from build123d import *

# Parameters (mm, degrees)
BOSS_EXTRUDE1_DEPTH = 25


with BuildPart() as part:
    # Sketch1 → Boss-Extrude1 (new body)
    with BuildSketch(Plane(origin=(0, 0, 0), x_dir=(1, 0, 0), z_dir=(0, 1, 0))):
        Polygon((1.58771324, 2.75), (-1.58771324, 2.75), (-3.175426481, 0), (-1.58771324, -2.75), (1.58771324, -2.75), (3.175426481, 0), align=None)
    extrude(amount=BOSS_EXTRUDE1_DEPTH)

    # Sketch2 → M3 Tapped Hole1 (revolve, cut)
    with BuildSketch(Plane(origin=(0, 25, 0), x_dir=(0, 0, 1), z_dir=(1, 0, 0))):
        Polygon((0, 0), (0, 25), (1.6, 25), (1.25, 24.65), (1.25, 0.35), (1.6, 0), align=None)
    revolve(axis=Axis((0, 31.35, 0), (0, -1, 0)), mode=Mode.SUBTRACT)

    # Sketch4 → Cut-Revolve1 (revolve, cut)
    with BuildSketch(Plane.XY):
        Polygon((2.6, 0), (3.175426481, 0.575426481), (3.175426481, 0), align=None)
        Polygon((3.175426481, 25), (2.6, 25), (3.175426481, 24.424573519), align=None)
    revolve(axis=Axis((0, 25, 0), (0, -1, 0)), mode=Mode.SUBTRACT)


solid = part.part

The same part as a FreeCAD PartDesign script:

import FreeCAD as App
import Part
import Sketcher
Q = App.Units.Quantity


def add_polygon(sketch, points):
    """Adds a closed chain of lines whose ends are joined by coincident constraints."""
    first, n = sketch.GeometryCount, len(points)
    for a, b in zip(points, points[1:] + points[:1]):
        sketch.addGeometry(Part.LineSegment(App.Vector(*a, 0), App.Vector(*b, 0)), False)
    for i in range(n):
        sketch.addConstraint(Sketcher.Constraint("Coincident", first + i, 2, first + (i + 1) % n, 1))

doc = App.newDocument("Part")
params = doc.addObject("Spreadsheet::Sheet", "Params")
for row, (alias, value) in enumerate([
    ("pad1_length", "25 mm"),
    ("sketch2_width", "25 mm"),
    ("sketch2_width2", "24.3 mm"),
    ("sketch2_height", "1.6 mm"),
    ("groove_angle", "360 deg"),
    ("groove2_angle", "360 deg"),
], start=1):
    params.set(f"A{row}", alias)
    params.set(f"B{row}", "=" + value)
    params.setAlias(f"B{row}", alias)

body = doc.addObject("PartDesign::Body", "Body")

sketch1 = body.newObject("Sketcher::SketchObject", "Sketch")
sketch1.AttachmentSupport = (doc.getObject("XZ_Plane"), [""])
sketch1.MapMode = "FlatFace"
add_polygon(sketch1, [(1.6, -2.8), (-1.6, -2.8), (-3.2, 0), (-1.6, 2.8), (1.6, 2.8), (3.2, 0)])
sketch1.addConstraint(Sketcher.Constraint("Horizontal", 0))
sketch1.addConstraint(Sketcher.Constraint("Horizontal", 3))
sketch1.addConstraint(Sketcher.Constraint("Symmetric", 0, 2, 3, 2, -1, 1))
sketch1.addConstraint(Sketcher.Constraint("Symmetric", 1, 2, 4, 2, -1, 1))
sketch1.addConstraint(Sketcher.Constraint("PointOnObject", 1, 2, -1))
sketch1.addConstraint(Sketcher.Constraint("Parallel", 2, 5))
sketch1.addConstraint(Sketcher.Constraint("Vertical", 0, 2, 2, 2))
sketch1.addConstraint(Sketcher.Constraint("Angle", 1, Q("120 deg")))
sketch1.addConstraint(Sketcher.Constraint("DistanceY", 0, 2, 2, 2, 5.5))
sketch1.addConstraint(Sketcher.Constraint("DistanceX", 0, 2, 0, 1, 3.175426))
pad1 = body.newObject("PartDesign::Pad", "Pad")
pad1.Profile = sketch1
pad1.setExpression("Length", "Params.pad1_length")
pad1.Reversed = True

sketch2 = body.newObject("Sketcher::SketchObject", "Sketch001")
sketch2.AttachmentSupport = (doc.getObject("YZ_Plane"), [""])
sketch2.MapMode = "FlatFace"
add_polygon(sketch2, [(0, 0), (25, 0), (25, 1.6), (24.65, 1.25), (0.35, 1.25), (0, 1.6)])
sketch2.addConstraint(Sketcher.Constraint("Horizontal", 0))
sketch2.addConstraint(Sketcher.Constraint("Vertical", 1))
sketch2.addConstraint(Sketcher.Constraint("Horizontal", 3))
sketch2.addConstraint(Sketcher.Constraint("Vertical", 5))
sketch2.addConstraint(Sketcher.Constraint("Coincident", 5, 2, -1, 1))
sketch2.addConstraint(Sketcher.Constraint("Perpendicular", 2, 4))
sketch2.addConstraint(Sketcher.Constraint("Horizontal", 1, 2, 4, 2))
sketch2.addConstraint(Sketcher.Constraint("Equal", 2, 4))
sketch2.addConstraint(Sketcher.Constraint("DistanceX", 0, 1, 0, 2, 25.0))
sketch2.addConstraint(Sketcher.Constraint("DistanceX", 3, 2, 3, 1, 24.3))
sketch2.addConstraint(Sketcher.Constraint("DistanceY", 1, 1, 1, 2, 1.6))
sketch2.setExpression("Constraints[14]", "Params.sketch2_width")
sketch2.setExpression("Constraints[15]", "Params.sketch2_width2")
sketch2.setExpression("Constraints[16]", "Params.sketch2_height")
groove = body.newObject("PartDesign::Groove", "Groove")
groove.Profile = sketch2
groove.ReferenceAxis = (sketch2, ["H_Axis"])
groove.setExpression("Angle", "Params.groove_angle")

sketch3 = body.newObject("Sketcher::SketchObject", "Sketch002")
sketch3.AttachmentSupport = (doc.getObject("XY_Plane"), [""])
sketch3.MapMode = "FlatFace"
add_polygon(sketch3, [(3.2, 0.6), (2.6, 0), (3.2, 0)])
add_polygon(sketch3, [(3.2, 25), (2.6, 25), (3.2, 24.4)])
sketch3.addConstraint(Sketcher.Constraint("Horizontal", 1))
sketch3.addConstraint(Sketcher.Constraint("Vertical", 2))
sketch3.addConstraint(Sketcher.Constraint("Horizontal", 3))
sketch3.addConstraint(Sketcher.Constraint("Vertical", 5))
sketch3.addConstraint(Sketcher.Constraint("PointOnObject", 0, 2, -1))
sketch3.addConstraint(Sketcher.Constraint("Perpendicular", 0, 4))
sketch3.addConstraint(Sketcher.Constraint("Vertical", 0, 2, 3, 2))
sketch3.addConstraint(Sketcher.Constraint("Vertical", 2, 2, 4, 2))
sketch3.addConstraint(Sketcher.Constraint("Equal", 3, 2))
sketch3.addConstraint(Sketcher.Constraint("DistanceY", -1, 1, 3, 2, 25.0))
sketch3.addConstraint(Sketcher.Constraint("DistanceX", -1, 1, 0, 2, 2.6))
sketch3.addConstraint(Sketcher.Constraint("DistanceX", 1, 1, 1, 2, 0.575426))
groove2 = body.newObject("PartDesign::Groove", "Groove001")
groove2.Profile = sketch3
groove2.ReferenceAxis = (sketch3, ["V_Axis"])
groove2.setExpression("Angle", "Params.groove2_angle")

doc.recompute()
